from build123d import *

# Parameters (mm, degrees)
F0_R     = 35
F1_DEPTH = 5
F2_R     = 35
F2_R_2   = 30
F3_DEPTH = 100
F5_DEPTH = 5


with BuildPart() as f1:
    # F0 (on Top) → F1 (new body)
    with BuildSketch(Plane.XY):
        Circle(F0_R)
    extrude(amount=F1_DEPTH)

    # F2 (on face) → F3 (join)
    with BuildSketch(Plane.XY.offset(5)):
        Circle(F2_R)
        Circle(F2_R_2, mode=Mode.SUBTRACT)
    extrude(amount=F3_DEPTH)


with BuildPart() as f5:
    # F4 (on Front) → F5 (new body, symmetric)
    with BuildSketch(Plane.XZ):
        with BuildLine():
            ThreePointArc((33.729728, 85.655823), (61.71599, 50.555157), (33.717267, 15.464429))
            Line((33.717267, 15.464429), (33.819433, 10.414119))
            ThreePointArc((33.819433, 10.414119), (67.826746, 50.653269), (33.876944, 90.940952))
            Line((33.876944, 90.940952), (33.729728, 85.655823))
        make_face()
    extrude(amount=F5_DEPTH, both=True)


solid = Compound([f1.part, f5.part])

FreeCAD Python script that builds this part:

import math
import FreeCAD as App
import Part
import Sketcher
from FreeCAD import Vector
Q = App.Units.Quantity

doc = App.newDocument("Part")
body = doc.addObject("PartDesign::Body", "Body")

# Sketch on XY plane
sketch1 = doc.addObject("Sketcher::SketchObject", "Sketch")
body.addObject(sketch1)
sketch1.AttachmentSupport = (doc.XY_Plane, [""])
sketch1.MapMode = "FlatFace"
sketch1.addGeometry(Part.Circle(Vector(0, 0, 0), Vector(0, 0, 1), 35), False)
sketch1.addConstraint([
    Sketcher.Constraint("Coincident", 0, 3, -1, 1),
    Sketcher.Constraint("Diameter", 0, Q("70 mm")),
])
pad1 = doc.addObject("PartDesign::Pad", "Pad")
body.addObject(pad1)
pad1.Profile = sketch1
pad1.Length = 5

# Sketch on XY plane
sketch2 = doc.addObject("Sketcher::SketchObject", "Sketch001")
body.addObject(sketch2)
sketch2.AttachmentSupport = (doc.XY_Plane, [""])
sketch2.MapMode = "FlatFace"
sketch2.AttachmentOffset = App.Placement(Vector(0, 0, 5), App.Rotation())
sketch2.addGeometry([
    Part.Circle(Vector(0, 0, 0), Vector(0, 0, 1), 35),
    Part.Circle(Vector(0, 0, 0), Vector(0, 0, 1), 30),
], False)
sketch2.addConstraint([
    Sketcher.Constraint("Coincident", 0, 3, -1, 1),
    Sketcher.Constraint("Coincident", 1, 3, -1, 1),
    Sketcher.Constraint("Diameter", 0, Q("70 mm")),
    Sketcher.Constraint("Diameter", 1, Q("60 mm")),
])
pad2 = doc.addObject("PartDesign::Pad", "Pad001")
body.addObject(pad2)
pad2.Profile = sketch2
pad2.Length = 100
body2 = doc.addObject("PartDesign::Body", "Body001")

# Sketch on XZ plane
sketch3 = doc.addObject("Sketcher::SketchObject", "Sketch002")
body2.addObject(sketch3)
sketch3.AttachmentSupport = (doc.getObject("XZ_Plane001"), [""])
sketch3.MapMode = "FlatFace"
sketch3.addGeometry([
    Part.ArcOfCircle(Part.Circle(Vector(25.71906, 50.561547, 0), Vector(0, 0, 1), 35.996931), math.radians(-77.162225), math.radians(77.141882)),
    Part.LineSegment(Vector(33.717267, 15.464429, 0), Vector(33.819433, 10.414119, 0)),
    Part.ArcOfCircle(Part.Circle(Vector(26.982089, 50.682439, 0), Vector(0, 0, 1), 40.844668), math.radians(-80.363392), math.radians(80.281552)),
    Part.LineSegment(Vector(33.876944, 90.940952, 0), Vector(33.729728, 85.655823, 0)),
], False)
sketch3.addConstraint([
    Sketcher.Constraint("Coincident", 0, 1, 1, 1),
    Sketcher.Constraint("Coincident", 1, 2, 2, 1),
    Sketcher.Constraint("Coincident", 2, 2, 3, 1),
    Sketcher.Constraint("Coincident", 3, 2, 0, 2),
    Sketcher.Constraint("Radius", 0, Q("35.996931 mm")),
    Sketcher.Constraint("Radius", 2, Q("40.844668 mm")),
    Sketcher.Constraint("Distance", 3, Q("5.287179 mm")),
    Sketcher.Constraint("DistanceX", -1, 1, 0, 3, Q("25.71906 mm")),
    Sketcher.Constraint("DistanceX", -1, 1, 2, 3, Q("26.982089 mm")),
    Sketcher.Constraint("DistanceY", -1, 1, 2, 3, Q("50.682439 mm")),
    Sketcher.Constraint("DistanceY", -1, 1, 0, 1, Q("15.464429 mm")),
    Sketcher.Constraint("DistanceY", -1, 1, 1, 2, Q("10.414119 mm")),
    Sketcher.Constraint("DistanceX", 2, 3, 0, 1, Q("6.735178 mm")),
    Sketcher.Constraint("DistanceX", 1, 2, 2, 2, Q("0.057511 mm")),
])
pad3 = doc.addObject("PartDesign::Pad", "Pad002")
body2.addObject(pad3)
pad3.Profile = sketch3
pad3.Length = 10
pad3.Midplane = True

doc.recompute()
